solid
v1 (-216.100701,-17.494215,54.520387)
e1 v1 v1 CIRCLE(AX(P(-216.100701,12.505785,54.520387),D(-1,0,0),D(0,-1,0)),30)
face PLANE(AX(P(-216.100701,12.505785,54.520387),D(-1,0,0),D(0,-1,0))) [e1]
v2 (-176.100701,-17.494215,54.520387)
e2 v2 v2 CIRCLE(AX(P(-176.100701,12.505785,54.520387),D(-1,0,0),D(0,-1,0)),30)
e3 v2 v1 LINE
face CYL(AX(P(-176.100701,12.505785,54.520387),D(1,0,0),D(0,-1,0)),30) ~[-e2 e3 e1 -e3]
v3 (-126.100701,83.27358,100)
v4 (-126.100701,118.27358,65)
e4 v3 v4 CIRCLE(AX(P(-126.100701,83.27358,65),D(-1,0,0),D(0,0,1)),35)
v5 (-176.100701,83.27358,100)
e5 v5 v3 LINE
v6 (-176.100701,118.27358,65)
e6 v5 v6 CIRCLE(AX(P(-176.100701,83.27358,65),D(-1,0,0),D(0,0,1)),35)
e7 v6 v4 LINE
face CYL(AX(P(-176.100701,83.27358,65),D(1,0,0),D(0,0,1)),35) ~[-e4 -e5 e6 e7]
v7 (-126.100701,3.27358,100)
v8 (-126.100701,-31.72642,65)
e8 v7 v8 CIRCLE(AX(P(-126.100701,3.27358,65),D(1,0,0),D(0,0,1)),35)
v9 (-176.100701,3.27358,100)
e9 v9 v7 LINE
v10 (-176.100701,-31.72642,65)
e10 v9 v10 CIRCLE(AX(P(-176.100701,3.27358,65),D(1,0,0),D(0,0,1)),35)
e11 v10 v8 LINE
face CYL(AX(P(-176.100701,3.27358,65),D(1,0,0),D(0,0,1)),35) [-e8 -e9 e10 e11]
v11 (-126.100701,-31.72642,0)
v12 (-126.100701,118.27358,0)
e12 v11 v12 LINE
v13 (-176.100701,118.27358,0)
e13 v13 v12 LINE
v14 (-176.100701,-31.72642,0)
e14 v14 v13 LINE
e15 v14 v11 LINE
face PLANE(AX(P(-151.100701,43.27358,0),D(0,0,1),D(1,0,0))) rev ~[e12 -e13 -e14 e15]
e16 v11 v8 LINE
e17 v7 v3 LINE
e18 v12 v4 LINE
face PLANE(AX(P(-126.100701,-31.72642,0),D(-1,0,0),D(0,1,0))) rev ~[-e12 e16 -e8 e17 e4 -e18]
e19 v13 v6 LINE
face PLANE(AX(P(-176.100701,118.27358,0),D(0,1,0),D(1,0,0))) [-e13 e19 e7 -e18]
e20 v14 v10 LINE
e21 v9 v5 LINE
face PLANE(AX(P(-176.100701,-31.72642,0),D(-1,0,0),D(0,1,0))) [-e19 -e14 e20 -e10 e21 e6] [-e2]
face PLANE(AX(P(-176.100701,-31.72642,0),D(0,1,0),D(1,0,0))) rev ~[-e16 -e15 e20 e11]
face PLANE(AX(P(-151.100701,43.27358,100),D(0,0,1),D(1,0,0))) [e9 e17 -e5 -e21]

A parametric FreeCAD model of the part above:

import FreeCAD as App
import Part
import Sketcher


def edges_at(feature, points):
    """Names of the edges that pass closest to the given points."""
    edges = feature.Shape.Edges
    near = lambda p: min(range(len(edges)), key=lambda i: edges[i].distToShape(Part.Vertex(*p))[0])
    return sorted({f"Edge{near(p) + 1}" for p in points})

doc = App.newDocument("Part")
params = doc.addObject("Spreadsheet::Sheet", "Params")
for row, (alias, value) in enumerate([
    ("sketch1_width", "50 mm"),
    ("sketch1_height", "150 mm"),
    ("pad1_length", "100 mm"),
    ("sketch2_diameter", "60 mm"),
    ("pad2_length", "40 mm"),
    ("fillet_radius", "35 mm"),
    ("fillet2_radius", "35 mm"),
], start=1):
    params.set(f"A{row}", alias)
    params.set(f"B{row}", "=" + value)
    params.setAlias(f"B{row}", alias)

body = doc.addObject("PartDesign::Body", "Body")

# Sketch on XY plane
sketch1 = doc.addObject("Sketcher::SketchObject", "Sketch")
body.addObject(sketch1)
sketch1.AttachmentSupport = (doc.XY_Plane, [""])
sketch1.MapMode = "FlatFace"
sketch1.addGeometry([
    Part.LineSegment(App.Vector(-176.100701, 118.27358, 0), App.Vector(-176.100701, -31.72642, 0)),
    Part.LineSegment(App.Vector(-176.100701, -31.72642, 0), App.Vector(-126.100701, -31.72642, 0)),
    Part.LineSegment(App.Vector(-126.100701, -31.72642, 0), App.Vector(-126.100701, 118.27358, 0)),
    Part.LineSegment(App.Vector(-126.100701, 118.27358, 0), App.Vector(-176.100701, 118.27358, 0)),
], False)
sketch1.addConstraint([
    Sketcher.Constraint("Coincident", 0, 2, 1, 1),
    Sketcher.Constraint("Coincident", 1, 2, 2, 1),
    Sketcher.Constraint("Coincident", 2, 2, 3, 1),
    Sketcher.Constraint("Coincident", 3, 2, 0, 1),
    Sketcher.Constraint("Vertical", 0),
    Sketcher.Constraint("Horizontal", 1),
    Sketcher.Constraint("Vertical", 2),
    Sketcher.Constraint("Horizontal", 3),
    Sketcher.Constraint("DistanceX", 1, 1, 1, 2, 50.0),
    Sketcher.Constraint("DistanceY", 0, 2, 0, 1, 150.0),
    Sketcher.Constraint("DistanceX", 0, 2, -1, 1, 176.100701),
    Sketcher.Constraint("DistanceY", 0, 2, -1, 1, 31.72642),
])
sketch1.setExpression("Constraints[8]", "Params.sketch1_width")
sketch1.setExpression("Constraints[9]", "Params.sketch1_height")
pad1 = doc.addObject("PartDesign::Pad", "Pad")
body.addObject(pad1)
pad1.Profile = sketch1
pad1.setExpression("Length", "Params.pad1_length")

# Sketch on YZ plane
sketch2 = doc.addObject("Sketcher::SketchObject", "Sketch001")
body.addObject(sketch2)
sketch2.AttachmentSupport = (doc.YZ_Plane, [""])
sketch2.MapMode = "FlatFace"
sketch2.AttachmentOffset = App.Placement(App.Vector(0, 0, -176.100701), App.Rotation())
sketch2.addGeometry(Part.Circle(App.Vector(12.505785, 54.520387, 0), App.Vector(0, 0, 1), 30), False)
sketch2.addConstraint([
    Sketcher.Constraint("Diameter", 0, 60.0),
    Sketcher.Constraint("DistanceX", -1, 1, 0, 3, 12.505785),
    Sketcher.Constraint("DistanceY", -1, 1, 0, 3, 54.520387),
])
sketch2.setExpression("Constraints[0]", "Params.sketch2_diameter")
pad2 = doc.addObject("PartDesign::Pad", "Pad001")
body.addObject(pad2)
pad2.Profile = sketch2
pad2.setExpression("Length", "Params.pad2_length")
pad2.Reversed = True
doc.recompute()

fillet = doc.addObject("PartDesign::Fillet", "Fillet")
body.addObject(fillet)
fillet.Base = (pad2, edges_at(pad2, [(-151.101, 118.274, 100)]))
fillet.setExpression("Radius", "Params.fillet_radius")
doc.recompute()

fillet2 = doc.addObject("PartDesign::Fillet", "Fillet001")
body.addObject(fillet2)
fillet2.Base = (fillet, edges_at(fillet, [(-151.101, -31.726, 100)]))
fillet2.setExpression("Radius", "Params.fillet2_radius")

doc.recompute()
